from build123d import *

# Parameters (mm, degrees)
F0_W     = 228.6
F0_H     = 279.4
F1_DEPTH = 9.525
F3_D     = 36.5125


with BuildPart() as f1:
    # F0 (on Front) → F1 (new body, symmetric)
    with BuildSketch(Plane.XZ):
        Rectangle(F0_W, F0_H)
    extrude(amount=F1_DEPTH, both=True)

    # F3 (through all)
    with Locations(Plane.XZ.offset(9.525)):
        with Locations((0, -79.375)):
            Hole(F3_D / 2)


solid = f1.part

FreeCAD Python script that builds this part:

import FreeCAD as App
import Part
import Sketcher

V = App.Vector
Q = App.Units.Quantity

doc = App.newDocument("Part")
body = doc.addObject("PartDesign::Body", "Body")

sketch1 = body.newObject("Sketcher::SketchObject", "Sketch")
sketch1.AttachmentSupport = (doc.getObject("XZ_Plane"), [""])
sketch1.MapMode = "FlatFace"
sketch1.addGeometry([
    Part.LineSegment(V(-114, 140, 0), V(-114, -140, 0)),
    Part.LineSegment(V(-114, -140, 0), V(114, -140, 0)),
    Part.LineSegment(V(114, -140, 0), V(114, 140, 0)),
    Part.LineSegment(V(114, 140, 0), V(-114, 140, 0)),
], False)
sketch1.addConstraint([
    Sketcher.Constraint("Coincident", 0, 2, 1, 1),
    Sketcher.Constraint("Coincident", 1, 2, 2, 1),
    Sketcher.Constraint("Coincident", 2, 2, 3, 1),
    Sketcher.Constraint("Coincident", 3, 2, 0, 1),
    Sketcher.Constraint("Vertical", 0),
    Sketcher.Constraint("Horizontal", 1),
    Sketcher.Constraint("Vertical", 2),
    Sketcher.Constraint("Horizontal", 3),
    Sketcher.Constraint("Symmetric", 0, 2, 2, 2, -1, 1),
    Sketcher.Constraint("DistanceX", 1, 1, 1, 2, Q("9 in")),
    Sketcher.Constraint("DistanceY", 0, 2, 0, 1, Q("11 in")),
])
pad1 = body.newObject("PartDesign::Pad", "Pad")
pad1.Profile = sketch1
pad1.Length = Q("0.75 in")
pad1.Midplane = True

sketch2 = body.newObject("Sketcher::SketchObject", "Sketch001")
sketch2.AttachmentSupport = (doc.getObject("XZ_Plane"), [""])
sketch2.MapMode = "FlatFace"
sketch2.AttachmentOffset = App.Placement(V(0, 0, 0.375 * 25.4), App.Rotation())
sketch2.addGeometry(Part.Circle(V(0, -79, 0), V(0, 0, 1), 18), False)
sketch2.addConstraint([
    Sketcher.Constraint("PointOnObject", 0, 3, -2),
    Sketcher.Constraint("Diameter", 0, Q("1.4375 in")),
    Sketcher.Constraint("DistanceY", 0, 3, -1, 1, Q("3.125 in")),
])
doc.recompute()
hole = body.newObject("PartDesign::Hole", "Hole")
hole.Profile = sketch2
hole.ThreadType = "None"
hole.Diameter = Q("1.4375 in")
hole.DepthType = "ThroughAll"

doc.recompute()
